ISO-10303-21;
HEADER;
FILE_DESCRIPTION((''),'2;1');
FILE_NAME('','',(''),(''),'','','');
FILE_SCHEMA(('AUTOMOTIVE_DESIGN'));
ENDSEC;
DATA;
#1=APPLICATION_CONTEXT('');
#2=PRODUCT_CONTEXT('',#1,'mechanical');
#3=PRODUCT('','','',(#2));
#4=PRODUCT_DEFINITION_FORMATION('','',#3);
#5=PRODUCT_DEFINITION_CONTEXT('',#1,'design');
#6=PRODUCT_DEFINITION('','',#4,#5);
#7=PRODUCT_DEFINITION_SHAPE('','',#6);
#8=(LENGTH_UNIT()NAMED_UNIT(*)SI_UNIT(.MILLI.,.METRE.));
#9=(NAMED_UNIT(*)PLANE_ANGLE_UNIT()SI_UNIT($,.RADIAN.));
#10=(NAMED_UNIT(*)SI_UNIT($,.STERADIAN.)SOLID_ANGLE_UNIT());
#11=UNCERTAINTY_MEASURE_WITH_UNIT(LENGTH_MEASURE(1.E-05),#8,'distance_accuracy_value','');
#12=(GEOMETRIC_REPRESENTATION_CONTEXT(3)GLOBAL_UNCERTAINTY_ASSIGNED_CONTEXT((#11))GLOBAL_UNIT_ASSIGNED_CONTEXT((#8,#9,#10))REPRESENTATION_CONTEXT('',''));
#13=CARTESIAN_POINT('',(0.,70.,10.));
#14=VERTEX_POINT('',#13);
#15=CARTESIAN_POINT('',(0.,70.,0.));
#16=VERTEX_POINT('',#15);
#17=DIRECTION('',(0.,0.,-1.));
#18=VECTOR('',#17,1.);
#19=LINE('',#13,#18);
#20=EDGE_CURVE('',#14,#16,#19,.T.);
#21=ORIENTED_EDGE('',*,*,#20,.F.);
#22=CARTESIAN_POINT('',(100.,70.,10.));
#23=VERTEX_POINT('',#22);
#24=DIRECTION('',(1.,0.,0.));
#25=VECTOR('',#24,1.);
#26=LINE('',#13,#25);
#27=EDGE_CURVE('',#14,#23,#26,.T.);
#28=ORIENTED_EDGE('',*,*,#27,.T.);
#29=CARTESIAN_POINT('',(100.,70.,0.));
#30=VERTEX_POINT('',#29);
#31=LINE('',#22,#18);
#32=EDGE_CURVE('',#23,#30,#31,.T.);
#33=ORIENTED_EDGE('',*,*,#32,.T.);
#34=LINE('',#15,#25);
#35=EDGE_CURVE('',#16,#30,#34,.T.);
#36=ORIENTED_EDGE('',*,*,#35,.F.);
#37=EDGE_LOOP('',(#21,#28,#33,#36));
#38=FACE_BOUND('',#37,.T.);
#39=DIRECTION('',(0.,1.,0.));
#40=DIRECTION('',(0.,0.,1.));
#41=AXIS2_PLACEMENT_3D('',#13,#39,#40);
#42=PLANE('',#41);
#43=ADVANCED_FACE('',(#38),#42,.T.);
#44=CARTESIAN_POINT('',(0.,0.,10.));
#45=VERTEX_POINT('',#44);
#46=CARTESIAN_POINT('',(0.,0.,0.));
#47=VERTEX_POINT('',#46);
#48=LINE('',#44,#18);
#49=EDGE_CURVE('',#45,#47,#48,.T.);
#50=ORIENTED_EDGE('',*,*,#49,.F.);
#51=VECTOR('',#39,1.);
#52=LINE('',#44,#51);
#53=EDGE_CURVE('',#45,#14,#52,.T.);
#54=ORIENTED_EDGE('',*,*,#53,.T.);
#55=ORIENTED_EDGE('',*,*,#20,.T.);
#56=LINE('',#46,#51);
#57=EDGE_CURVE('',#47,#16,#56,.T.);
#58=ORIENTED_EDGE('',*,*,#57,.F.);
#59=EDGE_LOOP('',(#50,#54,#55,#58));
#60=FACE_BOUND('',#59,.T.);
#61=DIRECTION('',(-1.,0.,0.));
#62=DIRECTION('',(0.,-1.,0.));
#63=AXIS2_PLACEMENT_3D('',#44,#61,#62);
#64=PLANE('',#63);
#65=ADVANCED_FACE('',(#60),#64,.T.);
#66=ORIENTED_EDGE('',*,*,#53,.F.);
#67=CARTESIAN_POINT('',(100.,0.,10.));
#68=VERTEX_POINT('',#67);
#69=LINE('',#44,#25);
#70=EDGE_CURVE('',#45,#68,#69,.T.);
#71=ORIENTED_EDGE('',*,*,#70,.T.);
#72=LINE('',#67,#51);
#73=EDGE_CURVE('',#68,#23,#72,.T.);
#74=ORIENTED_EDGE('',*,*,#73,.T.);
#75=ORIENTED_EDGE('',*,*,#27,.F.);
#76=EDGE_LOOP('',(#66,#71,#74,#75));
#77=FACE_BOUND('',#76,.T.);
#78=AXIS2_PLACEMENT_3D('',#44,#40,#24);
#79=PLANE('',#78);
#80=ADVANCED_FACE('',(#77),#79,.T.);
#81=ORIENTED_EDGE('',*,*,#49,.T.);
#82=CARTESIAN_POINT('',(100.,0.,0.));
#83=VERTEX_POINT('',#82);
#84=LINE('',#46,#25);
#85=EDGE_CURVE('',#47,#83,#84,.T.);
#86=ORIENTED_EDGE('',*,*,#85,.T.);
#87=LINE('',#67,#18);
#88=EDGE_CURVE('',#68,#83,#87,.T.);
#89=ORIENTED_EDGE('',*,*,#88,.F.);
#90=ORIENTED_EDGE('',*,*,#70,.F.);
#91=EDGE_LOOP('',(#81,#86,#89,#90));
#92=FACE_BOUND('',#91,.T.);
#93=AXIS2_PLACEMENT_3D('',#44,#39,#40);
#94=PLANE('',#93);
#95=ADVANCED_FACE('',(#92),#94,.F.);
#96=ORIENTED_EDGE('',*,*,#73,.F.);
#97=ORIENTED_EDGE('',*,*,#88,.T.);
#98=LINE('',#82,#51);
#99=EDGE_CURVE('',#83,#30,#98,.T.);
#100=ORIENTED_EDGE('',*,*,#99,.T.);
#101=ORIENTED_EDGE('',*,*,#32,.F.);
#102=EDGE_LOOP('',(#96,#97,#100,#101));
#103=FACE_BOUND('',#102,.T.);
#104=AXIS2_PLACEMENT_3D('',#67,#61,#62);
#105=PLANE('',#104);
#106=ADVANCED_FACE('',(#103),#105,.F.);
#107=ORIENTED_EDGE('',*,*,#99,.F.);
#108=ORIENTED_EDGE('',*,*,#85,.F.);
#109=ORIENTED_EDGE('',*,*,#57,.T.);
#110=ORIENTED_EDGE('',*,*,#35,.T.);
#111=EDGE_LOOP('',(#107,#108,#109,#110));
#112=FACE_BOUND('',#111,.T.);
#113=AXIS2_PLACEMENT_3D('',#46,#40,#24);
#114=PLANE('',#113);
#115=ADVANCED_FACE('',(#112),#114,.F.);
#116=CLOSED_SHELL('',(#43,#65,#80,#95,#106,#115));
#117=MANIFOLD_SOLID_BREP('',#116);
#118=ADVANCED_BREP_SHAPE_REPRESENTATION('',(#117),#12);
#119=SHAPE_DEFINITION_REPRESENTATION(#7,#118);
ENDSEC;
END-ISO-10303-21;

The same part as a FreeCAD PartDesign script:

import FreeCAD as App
import Part
import Sketcher

V = App.Vector
Q = App.Units.Quantity


def add_polygon(sketch, points):
    """Adds a closed chain of lines whose ends are joined by coincident constraints."""
    first, n = sketch.GeometryCount, len(points)
    for a, b in zip(points, points[1:] + points[:1]):
        sketch.addGeometry(Part.LineSegment(App.Vector(*a, 0), App.Vector(*b, 0)), False)
    for i in range(n):
        sketch.addConstraint(Sketcher.Constraint("Coincident", first + i, 2, first + (i + 1) % n, 1))

doc = App.newDocument("Part")
body = doc.addObject("PartDesign::Body", "Body")

# Sketch on XY plane
sketch1 = body.newObject("Sketcher::SketchObject", "Sketch")
sketch1.AttachmentSupport = (doc.getObject("XY_Plane"), [""])
sketch1.MapMode = "FlatFace"
add_polygon(sketch1, [(0, 70), (0, 0), (100, 0), (100, 70)])  # lines 0-3
sketch1.addConstraint([
    Sketcher.Constraint("Vertical", 0),
    Sketcher.Constraint("Horizontal", 1),
    Sketcher.Constraint("Vertical", 2),
    Sketcher.Constraint("Horizontal", 3),
    Sketcher.Constraint("Coincident", 0, 2, -1, 1),
    Sketcher.Constraint("DistanceX", 1, 1, 1, 2, Q("100 mm")),
    Sketcher.Constraint("DistanceY", 0, 2, 0, 1, Q("70 mm")),
])
pad1 = body.newObject("PartDesign::Pad", "Pad")
pad1.Profile = sketch1
pad1.Length = 10

doc.recompute()
